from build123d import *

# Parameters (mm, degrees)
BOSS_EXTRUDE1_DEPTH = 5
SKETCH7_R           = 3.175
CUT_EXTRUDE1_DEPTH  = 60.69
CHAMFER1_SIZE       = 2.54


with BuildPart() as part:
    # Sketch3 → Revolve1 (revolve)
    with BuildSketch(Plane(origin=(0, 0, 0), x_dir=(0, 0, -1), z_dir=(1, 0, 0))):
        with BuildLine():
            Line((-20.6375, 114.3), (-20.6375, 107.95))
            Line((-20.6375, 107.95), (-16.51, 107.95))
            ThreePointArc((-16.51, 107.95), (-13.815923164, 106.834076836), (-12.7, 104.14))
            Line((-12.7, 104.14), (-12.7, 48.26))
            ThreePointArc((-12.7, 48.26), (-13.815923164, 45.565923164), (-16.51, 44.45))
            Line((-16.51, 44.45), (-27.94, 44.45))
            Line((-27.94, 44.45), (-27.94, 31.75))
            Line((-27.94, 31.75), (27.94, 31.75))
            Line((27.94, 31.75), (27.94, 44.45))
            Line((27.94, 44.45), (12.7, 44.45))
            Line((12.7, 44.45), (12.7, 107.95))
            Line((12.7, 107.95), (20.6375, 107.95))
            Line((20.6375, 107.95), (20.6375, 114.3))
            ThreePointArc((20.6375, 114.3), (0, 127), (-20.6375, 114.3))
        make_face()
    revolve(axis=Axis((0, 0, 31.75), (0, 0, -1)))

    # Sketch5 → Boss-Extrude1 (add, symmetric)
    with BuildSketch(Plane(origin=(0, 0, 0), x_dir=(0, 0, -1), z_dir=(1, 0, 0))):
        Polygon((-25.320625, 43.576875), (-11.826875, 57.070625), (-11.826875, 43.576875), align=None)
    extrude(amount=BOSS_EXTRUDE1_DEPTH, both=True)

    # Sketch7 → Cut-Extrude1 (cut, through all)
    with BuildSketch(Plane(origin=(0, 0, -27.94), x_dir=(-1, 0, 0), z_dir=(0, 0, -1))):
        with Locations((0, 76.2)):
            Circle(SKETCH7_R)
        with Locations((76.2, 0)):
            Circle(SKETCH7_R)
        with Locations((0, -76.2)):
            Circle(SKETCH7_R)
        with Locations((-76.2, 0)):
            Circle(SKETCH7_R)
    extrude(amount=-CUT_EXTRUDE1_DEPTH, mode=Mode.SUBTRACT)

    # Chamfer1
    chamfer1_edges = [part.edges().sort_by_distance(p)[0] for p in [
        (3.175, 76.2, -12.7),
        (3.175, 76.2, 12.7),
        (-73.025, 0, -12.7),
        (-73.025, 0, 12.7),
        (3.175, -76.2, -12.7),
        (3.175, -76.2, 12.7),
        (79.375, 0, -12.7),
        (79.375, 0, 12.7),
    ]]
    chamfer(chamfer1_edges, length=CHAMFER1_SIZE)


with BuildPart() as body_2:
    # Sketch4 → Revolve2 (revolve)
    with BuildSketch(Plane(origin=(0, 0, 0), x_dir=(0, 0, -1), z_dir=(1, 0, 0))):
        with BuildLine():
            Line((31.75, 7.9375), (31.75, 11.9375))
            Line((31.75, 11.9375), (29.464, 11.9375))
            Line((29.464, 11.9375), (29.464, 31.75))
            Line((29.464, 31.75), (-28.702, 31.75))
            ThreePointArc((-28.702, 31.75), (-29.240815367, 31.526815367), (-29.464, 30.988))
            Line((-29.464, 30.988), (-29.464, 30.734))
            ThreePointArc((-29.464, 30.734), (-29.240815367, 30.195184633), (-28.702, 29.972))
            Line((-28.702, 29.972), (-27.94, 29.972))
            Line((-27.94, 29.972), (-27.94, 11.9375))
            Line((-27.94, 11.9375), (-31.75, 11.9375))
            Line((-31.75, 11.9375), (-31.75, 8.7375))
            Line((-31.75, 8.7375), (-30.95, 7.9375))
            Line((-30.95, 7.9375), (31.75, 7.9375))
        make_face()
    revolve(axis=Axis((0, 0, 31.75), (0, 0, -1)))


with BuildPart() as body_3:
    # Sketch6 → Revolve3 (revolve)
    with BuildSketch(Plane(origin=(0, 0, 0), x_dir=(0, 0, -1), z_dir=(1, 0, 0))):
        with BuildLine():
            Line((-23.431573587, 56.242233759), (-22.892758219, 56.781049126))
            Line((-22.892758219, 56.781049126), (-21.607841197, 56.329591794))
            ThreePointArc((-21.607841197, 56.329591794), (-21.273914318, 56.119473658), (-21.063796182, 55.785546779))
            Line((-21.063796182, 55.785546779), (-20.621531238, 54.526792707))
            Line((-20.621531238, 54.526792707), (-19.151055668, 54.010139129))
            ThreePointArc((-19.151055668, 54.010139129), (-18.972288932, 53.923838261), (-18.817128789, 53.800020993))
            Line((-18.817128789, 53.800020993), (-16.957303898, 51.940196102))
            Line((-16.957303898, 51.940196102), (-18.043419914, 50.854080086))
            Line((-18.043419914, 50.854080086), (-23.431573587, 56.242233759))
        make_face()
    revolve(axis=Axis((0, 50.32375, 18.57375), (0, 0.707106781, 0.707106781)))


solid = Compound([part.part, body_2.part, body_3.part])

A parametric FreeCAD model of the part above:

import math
import FreeCAD as App
import Part
import Sketcher
from FreeCAD import Vector
Q = App.Units.Quantity


def edges_at(feature, points):
    """Names of the edges that pass closest to the given points."""
    edges = feature.Shape.Edges
    near = lambda p: min(range(len(edges)), key=lambda i: edges[i].distToShape(Part.Vertex(*p))[0])
    return sorted({f"Edge{near(p) + 1}" for p in points})

doc = App.newDocument("Part")
body = doc.addObject("PartDesign::Body", "Body")

# Sketch on YZ plane
sketch1 = doc.addObject("Sketcher::SketchObject", "Sketch")
body.addObject(sketch1)
sketch1.AttachmentSupport = (doc.YZ_Plane, [""])
sketch1.MapMode = "FlatFace"
sketch1.addGeometry(Part.LineSegment(Vector(114.3, 20.6375, 0), Vector(107.95, 20.6375, 0)), False)
sketch1.addGeometry(Part.LineSegment(Vector(107.95, 20.6375, 0), Vector(107.95, 16.51, 0)), False)
sketch1.addGeometry(Part.ArcOfCircle(Part.Circle(Vector(104.14, 16.51, 0), Vector(0, 0, 1), 3.81), math.radians(-90), math.radians(0)), False)
sketch1.addGeometry(Part.LineSegment(Vector(104.14, 12.7, 0), Vector(48.26, 12.7, 0)), False)
sketch1.addGeometry(Part.ArcOfCircle(Part.Circle(Vector(48.26, 16.51, 0), Vector(0, 0, 1), 3.81), math.radians(-180), math.radians(-90)), False)
sketch1.addGeometry(Part.LineSegment(Vector(44.45, 16.51, 0), Vector(44.45, 27.94, 0)), False)
sketch1.addGeometry(Part.LineSegment(Vector(44.45, 27.94, 0), Vector(31.75, 27.94, 0)), False)
sketch1.addGeometry(Part.LineSegment(Vector(31.75, 27.94, 0), Vector(31.75, -27.94, 0)), False)
sketch1.addGeometry(Part.LineSegment(Vector(31.75, -27.94, 0), Vector(44.45, -27.94, 0)), False)
sketch1.addGeometry(Part.LineSegment(Vector(44.45, -27.94, 0), Vector(44.45, -12.7, 0)), False)
sketch1.addGeometry(Part.LineSegment(Vector(44.45, -12.7, 0), Vector(107.95, -12.7, 0)), False)
sketch1.addGeometry(Part.LineSegment(Vector(107.95, -12.7, 0), Vector(107.95, -20.6375, 0)), False)
sketch1.addGeometry(Part.LineSegment(Vector(107.95, -20.6375, 0), Vector(114.3, -20.6375, 0)), False)
sketch1.addGeometry(Part.ArcOfCircle(Part.Circle(Vector(103.882031, 0, 0), Vector(0, 0, 1), 23.117969), math.radians(-63.215004), math.radians(63.215004)), False)
sketch1.addConstraint(Sketcher.Constraint("Coincident", 0, 2, 1, 1))
sketch1.addConstraint(Sketcher.Constraint("Tangent", 1, 2, 2, 2))
sketch1.addConstraint(Sketcher.Constraint("Tangent", 2, 1, 3, 1))
sketch1.addConstraint(Sketcher.Constraint("Tangent", 3, 2, 4, 2))
sketch1.addConstraint(Sketcher.Constraint("Tangent", 4, 1, 5, 1))
sketch1.addConstraint(Sketcher.Constraint("Coincident", 5, 2, 6, 1))
sketch1.addConstraint(Sketcher.Constraint("Coincident", 6, 2, 7, 1))
sketch1.addConstraint(Sketcher.Constraint("Coincident", 7, 2, 8, 1))
sketch1.addConstraint(Sketcher.Constraint("Coincident", 8, 2, 9, 1))
sketch1.addConstraint(Sketcher.Constraint("Coincident", 9, 2, 10, 1))
sketch1.addConstraint(Sketcher.Constraint("Coincident", 10, 2, 11, 1))
sketch1.addConstraint(Sketcher.Constraint("Coincident", 11, 2, 12, 1))
sketch1.addConstraint(Sketcher.Constraint("Coincident", 12, 2, 13, 1))
sketch1.addConstraint(Sketcher.Constraint("Coincident", 13, 2, 0, 1))
sketch1.addConstraint(Sketcher.Constraint("Horizontal", 0))
sketch1.addConstraint(Sketcher.Constraint("Vertical", 1))
sketch1.addConstraint(Sketcher.Constraint("Horizontal", 3))
sketch1.addConstraint(Sketcher.Constraint("Vertical", 5))
sketch1.addConstraint(Sketcher.Constraint("Horizontal", 6))
sketch1.addConstraint(Sketcher.Constraint("Vertical", 7))
sketch1.addConstraint(Sketcher.Constraint("Horizontal", 8))
sketch1.addConstraint(Sketcher.Constraint("Vertical", 9))
sketch1.addConstraint(Sketcher.Constraint("Horizontal", 10))
sketch1.addConstraint(Sketcher.Constraint("Vertical", 11))
sketch1.addConstraint(Sketcher.Constraint("Horizontal", 12))
sketch1.addConstraint(Sketcher.Constraint("Equal", 2, 4))
sketch1.addConstraint(Sketcher.Constraint("Symmetric", 5, 2, 8, 2, -1))
sketch1.addConstraint(Sketcher.Constraint("Symmetric", 0, 2, 11, 2, -1))
sketch1.addConstraint(Sketcher.Constraint("PointOnObject", 13, 3, -1))
sketch1.addConstraint(Sketcher.Constraint("Equal", 3, 7))
sketch1.addConstraint(Sketcher.Constraint("Radius", 2, Q("0.15 in")))
sketch1.addConstraint(Sketcher.Constraint("DistanceX", 3, 2, 3, 1, Q("2.2 in")))
sketch1.addConstraint(Sketcher.Constraint("DistanceX", 6, 2, 6, 1, Q("0.5 in")))
sketch1.addConstraint(Sketcher.Constraint("DistanceY", 9, 1, 9, 2, Q("0.6 in")))
sketch1.addConstraint(Sketcher.Constraint("DistanceY", 9, 2, 3, 2, Q("1 in")))
sketch1.addConstraint(Sketcher.Constraint("DistanceX", 0, 2, 0, 1, Q("0.25 in")))
sketch1.addConstraint(Sketcher.Constraint("DistanceX", -1, 1, 2, 3, Q("4.1 in")))
sketch1.addConstraint(Sketcher.Constraint("DistanceY", 11, 2, 11, 1, Q("0.3125 in")))
sketch1.addConstraint(Sketcher.Constraint("Radius", 13, Q("23.117969 mm")))
revolution = doc.addObject("PartDesign::Revolution", "Revolution")
body.addObject(revolution)
revolution.Profile = sketch1
revolution.ReferenceAxis = (sketch1, ["V_Axis"])
revolution.Angle = 360

# Sketch on YZ plane
sketch2 = doc.addObject("Sketcher::SketchObject", "Sketch001")
body.addObject(sketch2)
sketch2.AttachmentSupport = (doc.YZ_Plane, [""])
sketch2.MapMode = "FlatFace"
sketch2.addGeometry(Part.LineSegment(Vector(57.070625, 11.826875, 0), Vector(43.576875, 25.320625, 0)), False)
sketch2.addGeometry(Part.LineSegment(Vector(43.576875, 25.320625, 0), Vector(43.576875, 11.826875, 0)), False)
sketch2.addGeometry(Part.LineSegment(Vector(43.576875, 11.826875, 0), Vector(57.070625, 11.826875, 0)), False)
sketch2.addConstraint(Sketcher.Constraint("Coincident", 0, 2, 1, 1))
sketch2.addConstraint(Sketcher.Constraint("Coincident", 1, 2, 2, 1))
sketch2.addConstraint(Sketcher.Constraint("Coincident", 2, 2, 0, 1))
sketch2.addConstraint(Sketcher.Constraint("Vertical", 1))
sketch2.addConstraint(Sketcher.Constraint("Horizontal", 2))
sketch2.addConstraint(Sketcher.Constraint("Equal", 2, 1))
sketch2.addConstraint(Sketcher.Constraint("DistanceX", 2, 1, 2, 2, Q("0.53125 in")))
sketch2.addConstraint(Sketcher.Constraint("DistanceX", -1, 1, 0, 2, Q("43.576875 mm")))
sketch2.addConstraint(Sketcher.Constraint("DistanceY", -1, 1, 0, 2, Q("25.320625 mm")))
pad1 = doc.addObject("PartDesign::Pad", "Pad")
body.addObject(pad1)
pad1.Profile = sketch2
pad1.Length = 10
pad1.Midplane = True

# Sketch on XY plane
sketch3 = doc.addObject("Sketcher::SketchObject", "Sketch002")
body.addObject(sketch3)
sketch3.AttachmentSupport = (doc.XY_Plane, [""])
sketch3.MapMode = "FlatFace"
sketch3.AttachmentOffset = App.Placement(Vector(0, 0, -1.1 * 25.4), App.Rotation())
sketch3.addGeometry(Part.Circle(Vector(0, 76.2, 0), Vector(0, 0, 1), 3.175), False)
sketch3.addGeometry(Part.Circle(Vector(-76.2, 0, 0), Vector(0, 0, 1), 3.175), False)
sketch3.addGeometry(Part.Circle(Vector(0, -76.2, 0), Vector(0, 0, 1), 3.175), False)
sketch3.addGeometry(Part.Circle(Vector(76.2, 0, 0), Vector(0, 0, 1), 3.175), False)
sketch3.addConstraint(Sketcher.Constraint("Equal", 0, 1))
sketch3.addConstraint(Sketcher.Constraint("Equal", 1, 2))
sketch3.addConstraint(Sketcher.Constraint("Equal", 2, 3))
sketch3.addConstraint(Sketcher.Constraint("Symmetric", 0, 3, 2, 3, -1, 1))
sketch3.addConstraint(Sketcher.Constraint("Symmetric", 1, 3, 3, 3, -1, 1))
sketch3.addConstraint(Sketcher.Constraint("PointOnObject", 0, 3, -2))
sketch3.addConstraint(Sketcher.Constraint("PointOnObject", 1, 3, -1))
sketch3.addConstraint(Sketcher.Constraint("Diameter", 0, Q("0.25 in")))
sketch3.addConstraint(Sketcher.Constraint("DistanceY", -1, 1, 0, 3, Q("3 in")))
sketch3.addConstraint(Sketcher.Constraint("DistanceX", 1, 3, -1, 1, Q("3 in")))
pocket1 = doc.addObject("PartDesign::Pocket", "Pocket")
body.addObject(pocket1)
pocket1.Profile = sketch3
pocket1.Type = "ThroughAll"
pocket1.Reversed = True
doc.recompute()

chamfer = doc.addObject("PartDesign::Chamfer", "Chamfer")
body.addObject(chamfer)
chamfer.Base = (pocket1, edges_at(pocket1, [
    (3.175, 76.2, -12.7),
    (3.175, 76.2, 12.7),
    (-73.025, 0, -12.7),
    (-73.025, 0, 12.7),
    (3.175, -76.2, -12.7),
    (3.175, -76.2, 12.7),
    (79.375, 0, -12.7),
    (79.375, 0, 12.7),
]))
chamfer.Size = Q("0.1 in")
body2 = doc.addObject("PartDesign::Body", "Body001")

# Sketch on YZ plane
sketch4 = doc.addObject("Sketcher::SketchObject", "Sketch003")
body2.addObject(sketch4)
sketch4.AttachmentSupport = (doc.getObject("YZ_Plane001"), [""])
sketch4.MapMode = "FlatFace"
sketch4.addGeometry(Part.LineSegment(Vector(7.9375, -31.75, 0), Vector(11.9375, -31.75, 0)), False)
sketch4.addGeometry(Part.LineSegment(Vector(11.9375, -31.75, 0), Vector(11.9375, -29.464, 0)), False)
sketch4.addGeometry(Part.LineSegment(Vector(11.9375, -29.464, 0), Vector(31.75, -29.464, 0)), False)
sketch4.addGeometry(Part.LineSegment(Vector(31.75, -29.464, 0), Vector(31.75, 28.702, 0)), False)
sketch4.addGeometry(Part.ArcOfCircle(Part.Circle(Vector(30.988, 28.702, 0), Vector(0, 0, 1), 0.762), math.radians(0), math.radians(90)), False)
sketch4.addGeometry(Part.LineSegment(Vector(30.988, 29.464, 0), Vector(30.734, 29.464, 0)), False)
sketch4.addGeometry(Part.ArcOfCircle(Part.Circle(Vector(30.734, 28.702, 0), Vector(0, 0, 1), 0.762), math.radians(90), math.radians(180)), False)
sketch4.addGeometry(Part.LineSegment(Vector(29.972, 28.702, 0), Vector(29.972, 27.94, 0)), False)
sketch4.addGeometry(Part.LineSegment(Vector(29.972, 27.94, 0), Vector(11.9375, 27.94, 0)), False)
sketch4.addGeometry(Part.LineSegment(Vector(11.9375, 27.94, 0), Vector(11.9375, 31.75, 0)), False)
sketch4.addGeometry(Part.LineSegment(Vector(11.9375, 31.75, 0), Vector(8.7375, 31.75, 0)), False)
sketch4.addGeometry(Part.LineSegment(Vector(8.7375, 31.75, 0), Vector(7.9375, 30.95, 0)), False)
sketch4.addGeometry(Part.LineSegment(Vector(7.9375, 30.95, 0), Vector(7.9375, -31.75, 0)), False)
sketch4.addConstraint(Sketcher.Constraint("Coincident", 0, 2, 1, 1))
sketch4.addConstraint(Sketcher.Constraint("Coincident", 1, 2, 2, 1))
sketch4.addConstraint(Sketcher.Constraint("Coincident", 2, 2, 3, 1))
sketch4.addConstraint(Sketcher.Constraint("Tangent", 3, 2, 4, 1))
sketch4.addConstraint(Sketcher.Constraint("Tangent", 4, 2, 5, 1))
sketch4.addConstraint(Sketcher.Constraint("Tangent", 5, 2, 6, 1))
sketch4.addConstraint(Sketcher.Constraint("Tangent", 6, 2, 7, 1))
sketch4.addConstraint(Sketcher.Constraint("Coincident", 7, 2, 8, 1))
sketch4.addConstraint(Sketcher.Constraint("Coincident", 8, 2, 9, 1))
sketch4.addConstraint(Sketcher.Constraint("Coincident", 9, 2, 10, 1))
sketch4.addConstraint(Sketcher.Constraint("Coincident", 10, 2, 11, 1))
sketch4.addConstraint(Sketcher.Constraint("Coincident", 11, 2, 12, 1))
sketch4.addConstraint(Sketcher.Constraint("Coincident", 12, 2, 0, 1))
sketch4.addConstraint(Sketcher.Constraint("Horizontal", 0))
sketch4.addConstraint(Sketcher.Constraint("Vertical", 1))
sketch4.addConstraint(Sketcher.Constraint("Horizontal", 2))
sketch4.addConstraint(Sketcher.Constraint("Vertical", 3))
sketch4.addConstraint(Sketcher.Constraint("Horizontal", 5))
sketch4.addConstraint(Sketcher.Constraint("Vertical", 7))
sketch4.addConstraint(Sketcher.Constraint("Horizontal", 8))
sketch4.addConstraint(Sketcher.Constraint("Vertical", 9))
sketch4.addConstraint(Sketcher.Constraint("Horizontal", 10))
sketch4.addConstraint(Sketcher.Constraint("Vertical", 12))
sketch4.addConstraint(Sketcher.Constraint("Equal", 4, 6))
sketch4.addConstraint(Sketcher.Constraint("Symmetric", 0, 2, 9, 2, -1))
sketch4.addConstraint(Sketcher.Constraint("Radius", 4, Q("0.03 in")))
sketch4.addConstraint(Sketcher.Constraint("Angle", 11, Q("-135 deg")))
sketch4.addConstraint(Sketcher.Constraint("DistanceX", 5, 2, 5, 1, Q("0.01 in")))
sketch4.addConstraint(Sketcher.Constraint("DistanceY", 1, 1, 1, 2, Q("0.09 in")))
sketch4.addConstraint(Sketcher.Constraint("DistanceY", 3, 1, 3, 2, Q("2.29 in")))
sketch4.addConstraint(Sketcher.Constraint("DistanceY", 7, 2, 7, 1, Q("0.03 in")))
sketch4.addConstraint(Sketcher.Constraint("DistanceY", 9, 1, 9, 2, Q("0.15 in")))
sketch4.addConstraint(Sketcher.Constraint("DistanceX", -1, 1, 4, 3, Q("1.22 in")))
sketch4.addConstraint(Sketcher.Constraint("DistanceX", -1, 1, 11, 2, Q("0.3125 in")))
sketch4.addConstraint(Sketcher.Constraint("DistanceX", 0, 1, 0, 2, Q("4 mm")))
sketch4.addConstraint(Sketcher.Constraint("DistanceX", 10, 2, 10, 1, Q("3.2 mm")))
revolution2 = doc.addObject("PartDesign::Revolution", "Revolution001")
body2.addObject(revolution2)
revolution2.Profile = sketch4
revolution2.ReferenceAxis = (sketch4, ["V_Axis"])
revolution2.Angle = 360
body3 = doc.addObject("PartDesign::Body", "Body002")

# Sketch on YZ plane
sketch5 = doc.addObject("Sketcher::SketchObject", "Sketch004")
body3.addObject(sketch5)
sketch5.AttachmentSupport = (doc.getObject("YZ_Plane002"), [""])
sketch5.MapMode = "FlatFace"
sketch5.addGeometry(Part.LineSegment(Vector(56.781049, 22.892758, 0), Vector(56.242234, 23.431574, 0)), False)
sketch5.addGeometry(Part.LineSegment(Vector(56.242234, 23.431574, 0), Vector(50.85408, 18.04342, 0)), False)
sketch5.addGeometry(Part.LineSegment(Vector(50.85408, 18.04342, 0), Vector(51.940196, 16.957304, 0)), False)
sketch5.addGeometry(Part.LineSegment(Vector(51.940196, 16.957304, 0), Vector(53.800021, 18.817129, 0)), False)
sketch5.addGeometry(Part.ArcOfCircle(Part.Circle(Vector(53.171403, 19.445747, 0), Vector(0, 0, 1), 0.889), math.radians(-45), math.radians(-19.358994)), False)
sketch5.addGeometry(Part.LineSegment(Vector(54.010139, 19.151056, 0), Vector(54.526793, 20.621531, 0)), False)
sketch5.addGeometry(Part.LineSegment(Vector(54.526793, 20.621531, 0), Vector(55.785547, 21.063796, 0)), False)
sketch5.addGeometry(Part.ArcOfCircle(Part.Circle(Vector(55.490856, 21.902532, 0), Vector(0, 0, 1), 0.889), math.radians(-70.641006), math.radians(-19.358994)), False)
sketch5.addGeometry(Part.LineSegment(Vector(56.329592, 21.607841, 0), Vector(56.781049, 22.892758, 0)), False)
sketch5.addGeometry(Part.LineSegment(Vector(50.32375, 18.57375, 0), Vector(55.711904, 23.961904, 0)), True)  # axis
sketch5.addConstraint(Sketcher.Constraint("Coincident", 0, 2, 1, 1))
sketch5.addConstraint(Sketcher.Constraint("Coincident", 1, 2, 2, 1))
sketch5.addConstraint(Sketcher.Constraint("Coincident", 2, 2, 3, 1))
sketch5.addConstraint(Sketcher.Constraint("Tangent", 3, 2, 4, 1))
sketch5.addConstraint(Sketcher.Constraint("Tangent", 4, 2, 5, 1))
sketch5.addConstraint(Sketcher.Constraint("Coincident", 5, 2, 6, 1))
sketch5.addConstraint(Sketcher.Constraint("Tangent", 6, 2, 7, 1))
sketch5.addConstraint(Sketcher.Constraint("Tangent", 7, 2, 8, 1))
sketch5.addConstraint(Sketcher.Constraint("Coincident", 8, 2, 0, 1))
sketch5.addConstraint(Sketcher.Constraint("Equal", 4, 7))
sketch5.addConstraint(Sketcher.Constraint("Perpendicular", 0, 1))
sketch5.addConstraint(Sketcher.Constraint("Perpendicular", 1, 2))
sketch5.addConstraint(Sketcher.Constraint("Perpendicular", 2, 3))
sketch5.addConstraint(Sketcher.Constraint("Parallel", 5, 8))
sketch5.addConstraint(Sketcher.Constraint("Parallel", 3, 9))
sketch5.addConstraint(Sketcher.Constraint("Equal", 1, 9))
sketch5.addConstraint(Sketcher.Constraint("Angle", 0, Q("135 deg")))
sketch5.addConstraint(Sketcher.Constraint("Radius", 4, Q("0.035 in")))
sketch5.addConstraint(Sketcher.Constraint("Distance", 1, Q("0.3 in")))
sketch5.addConstraint(Sketcher.Constraint("Distance", 0, Q("0.03 in")))
sketch5.addConstraint(Sketcher.Constraint("Distance", 2, Q("1.536 mm")))
sketch5.addConstraint(Sketcher.Constraint("Distance", 5, Q("1.558599 mm")))
sketch5.addConstraint(Sketcher.Constraint("DistanceY", 5, 2, 7, 3, Q("1.281001 mm")))
sketch5.addConstraint(Sketcher.Constraint("DistanceX", 5, 2, 7, 2, Q("1.802799 mm")))
sketch5.addConstraint(Sketcher.Constraint("Distance", 3, Q("2.63019 mm")))
sketch5.addConstraint(Sketcher.Constraint("DistanceX", -1, 1, 1, 2, Q("50.85408 mm")))
sketch5.addConstraint(Sketcher.Constraint("DistanceY", -1, 1, 1, 2, Q("18.04342 mm")))
sketch5.addConstraint(Sketcher.Constraint("DistanceX", -1, 1, 9, 1, Q("50.32375 mm")))
sketch5.addConstraint(Sketcher.Constraint("DistanceY", -1, 1, 9, 1, Q("18.57375 mm")))
revolution3 = doc.addObject("PartDesign::Revolution", "Revolution002")
body3.addObject(revolution3)
revolution3.Profile = sketch5
revolution3.ReferenceAxis = (sketch5, ["Axis0"])
revolution3.Angle = 360

doc.recompute()
